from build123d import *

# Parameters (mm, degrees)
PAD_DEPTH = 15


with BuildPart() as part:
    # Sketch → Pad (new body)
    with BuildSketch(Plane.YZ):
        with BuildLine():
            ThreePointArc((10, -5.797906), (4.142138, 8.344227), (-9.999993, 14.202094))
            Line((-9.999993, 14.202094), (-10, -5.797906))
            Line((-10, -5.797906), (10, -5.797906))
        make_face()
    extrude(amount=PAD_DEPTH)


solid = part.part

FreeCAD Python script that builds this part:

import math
import FreeCAD as App
import Part
import Sketcher
from FreeCAD import Vector
Q = App.Units.Quantity

doc = App.newDocument("Part")
params = doc.addObject("Spreadsheet::Sheet", "Params")
for row, (alias, value) in enumerate([
    ("sketch1_radius", "20 mm"),
    ("pad1_length", "15 mm"),
], start=1):
    params.set(f"A{row}", alias)
    params.set(f"B{row}", "=" + value)
    params.setAlias(f"B{row}", alias)

body = doc.addObject("PartDesign::Body", "Body")

sketch1 = body.newObject("Sketcher::SketchObject", "Sketch")
sketch1.AttachmentSupport = (doc.getObject("YZ_Plane"), [""])
sketch1.MapMode = "FlatFace"
sketch1.addGeometry([
    Part.ArcOfCircle(Part.Circle(Vector(-10, -6, 0), Vector(0, 0, 1), 20), math.radians(0), math.radians(90)),
    Part.LineSegment(Vector(-10, 14, 0), Vector(-10, -6, 0)),
    Part.LineSegment(Vector(-10, -6, 0), Vector(10, -6, 0)),
], False)
sketch1.addConstraint([
    Sketcher.Constraint("Coincident", 0, 2, 1, 1),
    Sketcher.Constraint("Coincident", 1, 2, 2, 1),
    Sketcher.Constraint("Coincident", 2, 2, 0, 1),
    Sketcher.Constraint("Horizontal", 2),
    Sketcher.Constraint("Coincident", 1, 2, 0, 3),
    Sketcher.Constraint("Radius", 0, Q("20 mm")),
    Sketcher.Constraint("DistanceX", 0, 3, -1, 1, Q("10 mm")),
    Sketcher.Constraint("DistanceY", 0, 3, -1, 1, Q("5.797906 mm")),
    Sketcher.Constraint("DistanceX", 0, 2, -1, 1, Q("9.999993 mm")),
])
sketch1.setExpression("Constraints[5]", "Params.sketch1_radius")
pad1 = body.newObject("PartDesign::Pad", "Pad")
pad1.Profile = sketch1
pad1.setExpression("Length", "Params.pad1_length")

doc.recompute()
